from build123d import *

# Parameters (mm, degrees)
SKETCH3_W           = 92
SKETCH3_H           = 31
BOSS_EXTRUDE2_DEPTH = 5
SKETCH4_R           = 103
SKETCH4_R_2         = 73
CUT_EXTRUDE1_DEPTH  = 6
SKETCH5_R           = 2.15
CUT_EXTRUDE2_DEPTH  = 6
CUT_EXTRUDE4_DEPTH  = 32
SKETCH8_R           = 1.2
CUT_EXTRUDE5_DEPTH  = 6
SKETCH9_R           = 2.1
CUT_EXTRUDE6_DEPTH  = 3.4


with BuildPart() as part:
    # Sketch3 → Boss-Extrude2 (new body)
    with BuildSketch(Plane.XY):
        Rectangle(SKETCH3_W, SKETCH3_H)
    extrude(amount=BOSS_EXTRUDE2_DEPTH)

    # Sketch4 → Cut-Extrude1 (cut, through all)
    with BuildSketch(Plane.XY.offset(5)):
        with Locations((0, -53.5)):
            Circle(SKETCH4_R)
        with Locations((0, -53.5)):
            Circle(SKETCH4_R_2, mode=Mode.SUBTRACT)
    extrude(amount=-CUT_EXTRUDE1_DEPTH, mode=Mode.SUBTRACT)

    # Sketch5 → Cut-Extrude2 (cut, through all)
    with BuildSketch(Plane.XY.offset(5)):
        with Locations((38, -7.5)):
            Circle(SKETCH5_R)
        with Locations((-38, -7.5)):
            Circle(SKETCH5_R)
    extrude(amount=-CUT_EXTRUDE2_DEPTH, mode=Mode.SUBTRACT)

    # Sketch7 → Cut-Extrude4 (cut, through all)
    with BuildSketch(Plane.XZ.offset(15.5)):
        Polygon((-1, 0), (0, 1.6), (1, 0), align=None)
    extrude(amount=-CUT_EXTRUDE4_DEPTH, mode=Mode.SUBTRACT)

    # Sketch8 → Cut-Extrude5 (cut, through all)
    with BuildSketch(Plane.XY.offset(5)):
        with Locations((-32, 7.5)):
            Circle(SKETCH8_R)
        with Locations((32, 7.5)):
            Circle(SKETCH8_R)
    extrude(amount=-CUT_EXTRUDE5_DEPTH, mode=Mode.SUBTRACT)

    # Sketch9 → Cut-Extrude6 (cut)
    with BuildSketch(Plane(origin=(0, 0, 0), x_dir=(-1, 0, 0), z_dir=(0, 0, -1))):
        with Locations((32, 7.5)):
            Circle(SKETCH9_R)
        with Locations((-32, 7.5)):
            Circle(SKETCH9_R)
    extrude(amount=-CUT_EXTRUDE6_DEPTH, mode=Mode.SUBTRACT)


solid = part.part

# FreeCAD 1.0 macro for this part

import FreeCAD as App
import Part
import Sketcher

V = App.Vector
Q = App.Units.Quantity

doc = App.newDocument("Part")
body = doc.addObject("PartDesign::Body", "Body")

sketch1 = body.newObject("Sketcher::SketchObject", "Sketch")
sketch1.AttachmentSupport = (doc.getObject("XY_Plane"), [""])
sketch1.MapMode = "FlatFace"
sketch1.addGeometry([
    Part.LineSegment(V(-46, 16, 0), V(-46, -16, 0)),
    Part.LineSegment(V(-46, -16, 0), V(46, -16, 0)),
    Part.LineSegment(V(46, -16, 0), V(46, 16, 0)),
    Part.LineSegment(V(46, 16, 0), V(-46, 16, 0)),
], False)
sketch1.addConstraint([
    Sketcher.Constraint("Coincident", 0, 2, 1, 1),
    Sketcher.Constraint("Coincident", 1, 2, 2, 1),
    Sketcher.Constraint("Coincident", 2, 2, 3, 1),
    Sketcher.Constraint("Coincident", 3, 2, 0, 1),
    Sketcher.Constraint("Vertical", 0),
    Sketcher.Constraint("Horizontal", 1),
    Sketcher.Constraint("Vertical", 2),
    Sketcher.Constraint("Horizontal", 3),
    Sketcher.Constraint("Symmetric", 0, 2, 2, 2, -1, 1),
    Sketcher.Constraint("DistanceX", 1, 1, 1, 2, Q("92 mm")),
    Sketcher.Constraint("DistanceY", 0, 2, 0, 1, Q("31 mm")),
])
pad1 = body.newObject("PartDesign::Pad", "Pad")
pad1.Profile = sketch1
pad1.Length = 5

sketch2 = body.newObject("Sketcher::SketchObject", "Sketch001")
sketch2.AttachmentSupport = (doc.getObject("XY_Plane"), [""])
sketch2.MapMode = "FlatFace"
sketch2.AttachmentOffset = App.Placement(V(0, 0, 5), App.Rotation())
sketch2.addGeometry([
    Part.Circle(V(0, -54, 0), V(0, 0, 1), 103),
    Part.Circle(V(0, -54, 0), V(0, 0, 1), 73),
], False)
sketch2.addConstraint([
    Sketcher.Constraint("Coincident", 1, 3, 0, 3),
    Sketcher.Constraint("PointOnObject", 0, 3, -2),
    Sketcher.Constraint("Diameter", 0, Q("206 mm")),
    Sketcher.Constraint("Diameter", 1, Q("146 mm")),
    Sketcher.Constraint("DistanceY", 0, 3, -1, 1, Q("53.5 mm")),
])
pocket1 = body.newObject("PartDesign::Pocket", "Pocket")
pocket1.Profile = sketch2
pocket1.Type = "ThroughAll"

sketch3 = body.newObject("Sketcher::SketchObject", "Sketch002")
sketch3.AttachmentSupport = (doc.getObject("XY_Plane"), [""])
sketch3.MapMode = "FlatFace"
sketch3.AttachmentOffset = App.Placement(V(0, 0, 5), App.Rotation())
sketch3.addGeometry([
    Part.Circle(V(38, -7.5, 0), V(0, 0, 1), 2.1),
    Part.Circle(V(-38, -7.5, 0), V(0, 0, 1), 2.1),
], False)
sketch3.addConstraint([
    Sketcher.Constraint("Equal", 0, 1),
    Sketcher.Constraint("Symmetric", 0, 3, 1, 3, -2),
    Sketcher.Constraint("Diameter", 0, Q("4.3 mm")),
    Sketcher.Constraint("DistanceX", -1, 1, 0, 3, Q("38 mm")),
    Sketcher.Constraint("DistanceY", 0, 3, -1, 1, Q("7.5 mm")),
])
pocket2 = body.newObject("PartDesign::Pocket", "Pocket001")
pocket2.Profile = sketch3
pocket2.Type = "ThroughAll"

sketch4 = body.newObject("Sketcher::SketchObject", "Sketch003")
sketch4.AttachmentSupport = (doc.getObject("XZ_Plane"), [""])
sketch4.MapMode = "FlatFace"
sketch4.AttachmentOffset = App.Placement(V(0, 0, 15.5), App.Rotation())
sketch4.addGeometry([
    Part.LineSegment(V(0, 1.6, 0), V(-1, 0, 0)),
    Part.LineSegment(V(-1, 0, 0), V(1, 0, 0)),
    Part.LineSegment(V(1, 0, 0), V(0, 1.6, 0)),
], False)
sketch4.addConstraint([
    Sketcher.Constraint("Coincident", 0, 2, 1, 1),
    Sketcher.Constraint("Coincident", 1, 2, 2, 1),
    Sketcher.Constraint("Coincident", 2, 2, 0, 1),
    Sketcher.Constraint("Horizontal", 1),
    Sketcher.Constraint("Symmetric", 0, 2, 1, 2, -1, 1),
    Sketcher.Constraint("PointOnObject", 2, 2, -2),
    Sketcher.Constraint("DistanceX", 1, 1, 1, 2, Q("2 mm")),
    Sketcher.Constraint("DistanceY", -1, 1, 2, 2, Q("1.6 mm")),
])
pocket3 = body.newObject("PartDesign::Pocket", "Pocket002")
pocket3.Profile = sketch4
pocket3.Type = "ThroughAll"

sketch5 = body.newObject("Sketcher::SketchObject", "Sketch004")
sketch5.AttachmentSupport = (doc.getObject("XY_Plane"), [""])
sketch5.MapMode = "FlatFace"
sketch5.AttachmentOffset = App.Placement(V(0, 0, 5), App.Rotation())
sketch5.addGeometry([
    Part.Circle(V(-32, 7.5, 0), V(0, 0, 1), 1.2),
    Part.Circle(V(32, 7.5, 0), V(0, 0, 1), 1.2),
], False)
sketch5.addConstraint([
    Sketcher.Constraint("Equal", 0, 1),
    Sketcher.Constraint("Symmetric", 0, 3, 1, 3, -2),
    Sketcher.Constraint("Diameter", 0, Q("2.4 mm")),
    Sketcher.Constraint("DistanceX", 0, 3, -1, 1, Q("32 mm")),
    Sketcher.Constraint("DistanceY", -1, 1, 0, 3, Q("7.5 mm")),
])
pocket4 = body.newObject("PartDesign::Pocket", "Pocket003")
pocket4.Profile = sketch5
pocket4.Type = "ThroughAll"

sketch6 = body.newObject("Sketcher::SketchObject", "Sketch005")
sketch6.AttachmentSupport = (doc.getObject("XY_Plane"), [""])
sketch6.MapMode = "FlatFace"
sketch6.addGeometry([
    Part.Circle(V(-32, 7.5, 0), V(0, 0, 1), 2.1),
    Part.Circle(V(32, 7.5, 0), V(0, 0, 1), 2.1),
], False)
sketch6.addConstraint([
    Sketcher.Constraint("Equal", 0, 1),
    Sketcher.Constraint("Symmetric", 0, 3, 1, 3, -2),
    Sketcher.Constraint("Diameter", 0, Q("4.2 mm")),
    Sketcher.Constraint("DistanceX", 0, 3, -1, 1, Q("32 mm")),
    Sketcher.Constraint("DistanceY", -1, 1, 0, 3, Q("7.5 mm")),
])
pocket5 = body.newObject("PartDesign::Pocket", "Pocket004")
pocket5.Profile = sketch6
pocket5.Length = 3.4
pocket5.Reversed = True

doc.recompute()
